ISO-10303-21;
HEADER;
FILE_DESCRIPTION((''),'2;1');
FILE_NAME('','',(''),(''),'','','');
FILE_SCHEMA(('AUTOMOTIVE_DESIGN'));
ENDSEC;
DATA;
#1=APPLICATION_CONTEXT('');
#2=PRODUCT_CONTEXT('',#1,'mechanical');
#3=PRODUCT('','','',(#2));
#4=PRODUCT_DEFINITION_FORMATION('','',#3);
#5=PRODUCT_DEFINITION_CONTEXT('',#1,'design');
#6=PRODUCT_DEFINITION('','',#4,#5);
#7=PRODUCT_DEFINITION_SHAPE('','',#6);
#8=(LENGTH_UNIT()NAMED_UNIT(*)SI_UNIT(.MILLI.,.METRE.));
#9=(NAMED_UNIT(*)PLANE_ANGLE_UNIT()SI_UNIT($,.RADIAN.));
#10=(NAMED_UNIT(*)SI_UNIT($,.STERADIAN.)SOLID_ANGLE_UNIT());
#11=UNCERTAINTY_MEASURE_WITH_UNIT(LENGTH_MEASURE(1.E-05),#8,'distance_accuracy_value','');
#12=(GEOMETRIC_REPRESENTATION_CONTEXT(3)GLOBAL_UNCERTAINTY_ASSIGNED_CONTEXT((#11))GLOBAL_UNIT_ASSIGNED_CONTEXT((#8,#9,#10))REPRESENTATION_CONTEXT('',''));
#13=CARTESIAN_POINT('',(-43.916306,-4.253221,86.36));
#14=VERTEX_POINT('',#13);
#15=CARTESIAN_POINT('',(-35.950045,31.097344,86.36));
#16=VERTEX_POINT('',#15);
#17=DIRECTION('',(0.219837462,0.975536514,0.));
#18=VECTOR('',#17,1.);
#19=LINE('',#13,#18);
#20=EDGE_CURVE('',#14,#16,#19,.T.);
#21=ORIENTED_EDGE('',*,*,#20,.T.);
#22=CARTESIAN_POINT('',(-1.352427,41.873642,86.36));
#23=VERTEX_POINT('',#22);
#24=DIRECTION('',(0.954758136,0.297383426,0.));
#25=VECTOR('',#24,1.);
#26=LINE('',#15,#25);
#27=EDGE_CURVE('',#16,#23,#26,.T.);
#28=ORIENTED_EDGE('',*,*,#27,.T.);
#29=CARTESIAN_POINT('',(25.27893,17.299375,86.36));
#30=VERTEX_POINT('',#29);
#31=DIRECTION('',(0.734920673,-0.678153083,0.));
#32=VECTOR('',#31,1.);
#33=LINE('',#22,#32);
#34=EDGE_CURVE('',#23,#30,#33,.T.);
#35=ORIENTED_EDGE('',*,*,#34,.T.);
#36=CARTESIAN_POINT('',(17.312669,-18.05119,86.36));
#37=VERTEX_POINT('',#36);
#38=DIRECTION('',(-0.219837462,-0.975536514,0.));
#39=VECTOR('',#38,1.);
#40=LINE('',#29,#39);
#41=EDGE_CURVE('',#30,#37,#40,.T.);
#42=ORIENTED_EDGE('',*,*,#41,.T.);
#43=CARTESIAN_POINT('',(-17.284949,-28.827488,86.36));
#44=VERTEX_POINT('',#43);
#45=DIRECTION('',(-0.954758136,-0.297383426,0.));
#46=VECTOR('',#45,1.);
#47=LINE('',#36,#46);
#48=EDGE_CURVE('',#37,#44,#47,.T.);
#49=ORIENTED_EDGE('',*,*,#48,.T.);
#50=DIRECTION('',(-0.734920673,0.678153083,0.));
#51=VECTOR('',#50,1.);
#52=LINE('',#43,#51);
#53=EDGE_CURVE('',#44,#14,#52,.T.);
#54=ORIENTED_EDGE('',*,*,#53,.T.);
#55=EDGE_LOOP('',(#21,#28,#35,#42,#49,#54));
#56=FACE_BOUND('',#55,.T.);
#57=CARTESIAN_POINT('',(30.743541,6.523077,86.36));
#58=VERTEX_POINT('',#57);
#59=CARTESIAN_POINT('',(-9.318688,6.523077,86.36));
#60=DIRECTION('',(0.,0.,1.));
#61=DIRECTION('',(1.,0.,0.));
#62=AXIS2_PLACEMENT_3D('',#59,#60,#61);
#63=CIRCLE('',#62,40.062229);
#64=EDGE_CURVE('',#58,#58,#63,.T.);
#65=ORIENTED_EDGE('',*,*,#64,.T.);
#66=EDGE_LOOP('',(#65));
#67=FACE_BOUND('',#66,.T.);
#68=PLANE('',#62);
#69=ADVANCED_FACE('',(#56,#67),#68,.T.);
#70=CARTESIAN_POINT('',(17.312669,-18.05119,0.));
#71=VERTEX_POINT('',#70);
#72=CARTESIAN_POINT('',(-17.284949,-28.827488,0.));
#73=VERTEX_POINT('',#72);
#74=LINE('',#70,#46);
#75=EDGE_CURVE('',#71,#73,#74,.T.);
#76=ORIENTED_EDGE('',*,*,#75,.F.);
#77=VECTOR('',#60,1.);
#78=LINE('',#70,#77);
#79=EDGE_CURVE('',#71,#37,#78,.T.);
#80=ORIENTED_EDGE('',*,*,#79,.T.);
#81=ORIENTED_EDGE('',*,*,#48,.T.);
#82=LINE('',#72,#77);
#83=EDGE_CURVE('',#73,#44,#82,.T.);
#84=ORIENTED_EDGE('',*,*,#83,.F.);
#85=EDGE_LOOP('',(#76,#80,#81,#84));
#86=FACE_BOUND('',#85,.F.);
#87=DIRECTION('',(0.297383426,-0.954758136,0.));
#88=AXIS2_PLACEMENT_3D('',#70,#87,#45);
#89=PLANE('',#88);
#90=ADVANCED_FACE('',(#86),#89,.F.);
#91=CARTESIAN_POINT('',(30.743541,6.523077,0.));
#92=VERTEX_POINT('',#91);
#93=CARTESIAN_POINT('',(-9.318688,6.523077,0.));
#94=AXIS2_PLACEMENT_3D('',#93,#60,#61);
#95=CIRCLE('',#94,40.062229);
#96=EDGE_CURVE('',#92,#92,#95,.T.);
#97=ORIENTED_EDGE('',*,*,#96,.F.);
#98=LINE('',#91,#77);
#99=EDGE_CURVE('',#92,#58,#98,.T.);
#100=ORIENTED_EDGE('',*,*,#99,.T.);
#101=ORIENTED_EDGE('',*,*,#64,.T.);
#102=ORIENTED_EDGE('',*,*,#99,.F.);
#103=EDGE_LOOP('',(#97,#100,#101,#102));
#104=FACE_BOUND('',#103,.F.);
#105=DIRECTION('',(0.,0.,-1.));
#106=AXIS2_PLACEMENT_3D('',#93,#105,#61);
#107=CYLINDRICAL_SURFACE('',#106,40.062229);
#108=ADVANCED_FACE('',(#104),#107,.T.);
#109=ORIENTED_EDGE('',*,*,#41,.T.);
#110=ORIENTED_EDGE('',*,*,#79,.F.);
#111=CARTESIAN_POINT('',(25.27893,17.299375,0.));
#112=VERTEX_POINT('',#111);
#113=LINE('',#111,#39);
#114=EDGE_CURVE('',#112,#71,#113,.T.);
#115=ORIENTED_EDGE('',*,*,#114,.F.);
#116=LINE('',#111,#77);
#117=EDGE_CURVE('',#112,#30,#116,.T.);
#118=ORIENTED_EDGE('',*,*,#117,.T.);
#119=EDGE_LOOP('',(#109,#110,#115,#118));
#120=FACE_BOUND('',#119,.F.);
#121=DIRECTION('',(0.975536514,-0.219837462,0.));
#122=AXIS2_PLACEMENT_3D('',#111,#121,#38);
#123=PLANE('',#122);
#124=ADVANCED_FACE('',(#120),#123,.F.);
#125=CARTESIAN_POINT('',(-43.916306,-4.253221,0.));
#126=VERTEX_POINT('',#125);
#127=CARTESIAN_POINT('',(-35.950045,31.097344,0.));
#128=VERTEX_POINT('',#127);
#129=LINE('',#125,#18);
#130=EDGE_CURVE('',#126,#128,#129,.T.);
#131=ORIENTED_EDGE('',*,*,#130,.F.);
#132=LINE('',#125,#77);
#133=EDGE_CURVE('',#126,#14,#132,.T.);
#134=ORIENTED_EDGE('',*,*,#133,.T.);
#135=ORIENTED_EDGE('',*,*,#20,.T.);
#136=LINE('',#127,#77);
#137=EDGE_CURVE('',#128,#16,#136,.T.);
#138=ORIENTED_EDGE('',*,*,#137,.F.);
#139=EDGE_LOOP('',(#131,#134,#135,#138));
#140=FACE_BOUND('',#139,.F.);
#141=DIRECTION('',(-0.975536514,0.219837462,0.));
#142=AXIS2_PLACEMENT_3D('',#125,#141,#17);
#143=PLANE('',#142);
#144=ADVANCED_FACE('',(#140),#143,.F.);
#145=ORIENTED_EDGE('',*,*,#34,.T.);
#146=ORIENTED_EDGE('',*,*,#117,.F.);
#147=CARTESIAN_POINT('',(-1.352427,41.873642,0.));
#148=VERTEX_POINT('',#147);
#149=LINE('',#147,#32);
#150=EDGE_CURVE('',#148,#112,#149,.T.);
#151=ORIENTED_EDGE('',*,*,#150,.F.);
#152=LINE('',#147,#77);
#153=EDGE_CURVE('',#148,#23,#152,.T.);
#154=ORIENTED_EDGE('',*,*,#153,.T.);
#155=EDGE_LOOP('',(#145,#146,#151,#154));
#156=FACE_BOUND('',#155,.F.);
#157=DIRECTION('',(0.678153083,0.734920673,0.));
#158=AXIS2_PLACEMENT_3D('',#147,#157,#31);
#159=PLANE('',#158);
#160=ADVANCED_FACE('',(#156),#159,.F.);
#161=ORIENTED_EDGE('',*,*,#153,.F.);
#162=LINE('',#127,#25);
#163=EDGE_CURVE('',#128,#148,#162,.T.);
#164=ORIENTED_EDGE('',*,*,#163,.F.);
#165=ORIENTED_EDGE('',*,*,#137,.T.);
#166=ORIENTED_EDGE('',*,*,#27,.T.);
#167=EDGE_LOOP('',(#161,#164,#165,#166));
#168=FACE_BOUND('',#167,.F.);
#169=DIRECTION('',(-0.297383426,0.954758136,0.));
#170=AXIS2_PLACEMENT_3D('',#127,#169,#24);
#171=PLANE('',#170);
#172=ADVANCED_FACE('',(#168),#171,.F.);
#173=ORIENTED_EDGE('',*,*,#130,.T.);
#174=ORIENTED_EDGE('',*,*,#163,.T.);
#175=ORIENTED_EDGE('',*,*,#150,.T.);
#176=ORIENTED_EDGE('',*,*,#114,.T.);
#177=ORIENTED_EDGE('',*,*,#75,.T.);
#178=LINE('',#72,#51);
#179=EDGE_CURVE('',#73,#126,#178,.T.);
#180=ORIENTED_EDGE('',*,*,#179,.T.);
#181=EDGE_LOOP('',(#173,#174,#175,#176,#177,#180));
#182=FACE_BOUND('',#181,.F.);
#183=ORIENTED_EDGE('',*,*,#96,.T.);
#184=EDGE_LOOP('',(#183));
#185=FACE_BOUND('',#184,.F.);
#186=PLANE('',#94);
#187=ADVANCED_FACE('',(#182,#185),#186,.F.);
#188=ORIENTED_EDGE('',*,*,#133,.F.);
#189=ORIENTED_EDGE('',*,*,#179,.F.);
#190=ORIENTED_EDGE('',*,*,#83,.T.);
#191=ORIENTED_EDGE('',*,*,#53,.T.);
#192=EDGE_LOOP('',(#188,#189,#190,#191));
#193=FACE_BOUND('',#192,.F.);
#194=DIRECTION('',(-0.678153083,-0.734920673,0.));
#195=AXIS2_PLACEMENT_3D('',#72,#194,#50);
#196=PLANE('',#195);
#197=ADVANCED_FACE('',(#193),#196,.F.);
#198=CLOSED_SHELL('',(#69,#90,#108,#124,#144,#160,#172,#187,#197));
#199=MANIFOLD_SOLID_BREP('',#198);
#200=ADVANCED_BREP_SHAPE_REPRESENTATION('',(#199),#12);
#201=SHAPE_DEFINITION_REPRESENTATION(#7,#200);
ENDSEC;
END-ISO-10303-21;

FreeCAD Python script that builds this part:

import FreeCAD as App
import Part
import Sketcher
Q = App.Units.Quantity

doc = App.newDocument("Part")
body = doc.addObject("PartDesign::Body", "Body")

# Sketch on XY plane
sketch1 = body.newObject("Sketcher::SketchObject", "Sketch")
sketch1.AttachmentSupport = (doc.getObject("XY_Plane"), [""])
sketch1.MapMode = "FlatFace"
sketch1.addGeometry(Part.Circle(App.Vector(-9, 7, 0), App.Vector(0, 0, 1), 40), False)
sketch1.addGeometry(Part.LineSegment(App.Vector(-17, -29, 0), App.Vector(-44, -4, 0)), False)
sketch1.addGeometry(Part.LineSegment(App.Vector(-44, -4, 0), App.Vector(-36, 31, 0)), False)
sketch1.addGeometry(Part.LineSegment(App.Vector(-36, 31, 0), App.Vector(-1, 42, 0)), False)
sketch1.addGeometry(Part.LineSegment(App.Vector(-1, 42, 0), App.Vector(25, 17, 0)), False)
sketch1.addGeometry(Part.LineSegment(App.Vector(25, 17, 0), App.Vector(17, -18, 0)), False)
sketch1.addGeometry(Part.LineSegment(App.Vector(17, -18, 0), App.Vector(-17, -29, 0)), False)
sketch1.addConstraint(Sketcher.Constraint("Coincident", 1, 2, 2, 1))
sketch1.addConstraint(Sketcher.Constraint("Coincident", 2, 2, 3, 1))
sketch1.addConstraint(Sketcher.Constraint("Coincident", 3, 2, 4, 1))
sketch1.addConstraint(Sketcher.Constraint("Coincident", 4, 2, 5, 1))
sketch1.addConstraint(Sketcher.Constraint("Coincident", 5, 2, 6, 1))
sketch1.addConstraint(Sketcher.Constraint("Coincident", 6, 2, 1, 1))
sketch1.addConstraint(Sketcher.Constraint("Parallel", 1, 4))
sketch1.addConstraint(Sketcher.Constraint("Parallel", 2, 5))
sketch1.addConstraint(Sketcher.Constraint("Parallel", 3, 6))
sketch1.addConstraint(Sketcher.Constraint("Equal", 1, 2))
sketch1.addConstraint(Sketcher.Constraint("Equal", 2, 3))
sketch1.addConstraint(Sketcher.Constraint("Equal", 3, 4))
sketch1.addConstraint(Sketcher.Constraint("Diameter", 0, Q("80.124458 mm")))
sketch1.addConstraint(Sketcher.Constraint("Distance", 1, Q("36.23705 mm")))
sketch1.addConstraint(Sketcher.Constraint("DistanceY", 1, 2, -1, 1, Q("4.253221 mm")))
sketch1.addConstraint(Sketcher.Constraint("DistanceY", -1, 1, 3, 2, Q("41.873642 mm")))
sketch1.addConstraint(Sketcher.Constraint("DistanceX", -1, 1, 4, 2, Q("25.27893 mm")))
sketch1.addConstraint(Sketcher.Constraint("DistanceX", -1, 1, 5, 2, Q("17.312669 mm")))
sketch1.addConstraint(Sketcher.Constraint("DistanceY", 5, 2, -1, 1, Q("18.05119 mm")))
sketch1.addConstraint(Sketcher.Constraint("DistanceX", 0, 3, 3, 2, Q("7.966261 mm")))
sketch1.addConstraint(Sketcher.Constraint("DistanceY", -1, 1, 0, 3, Q("6.523077 mm")))
pad1 = body.newObject("PartDesign::Pad", "Pad")
pad1.Profile = sketch1
pad1.Length = Q("3.4 in")

doc.recompute()
